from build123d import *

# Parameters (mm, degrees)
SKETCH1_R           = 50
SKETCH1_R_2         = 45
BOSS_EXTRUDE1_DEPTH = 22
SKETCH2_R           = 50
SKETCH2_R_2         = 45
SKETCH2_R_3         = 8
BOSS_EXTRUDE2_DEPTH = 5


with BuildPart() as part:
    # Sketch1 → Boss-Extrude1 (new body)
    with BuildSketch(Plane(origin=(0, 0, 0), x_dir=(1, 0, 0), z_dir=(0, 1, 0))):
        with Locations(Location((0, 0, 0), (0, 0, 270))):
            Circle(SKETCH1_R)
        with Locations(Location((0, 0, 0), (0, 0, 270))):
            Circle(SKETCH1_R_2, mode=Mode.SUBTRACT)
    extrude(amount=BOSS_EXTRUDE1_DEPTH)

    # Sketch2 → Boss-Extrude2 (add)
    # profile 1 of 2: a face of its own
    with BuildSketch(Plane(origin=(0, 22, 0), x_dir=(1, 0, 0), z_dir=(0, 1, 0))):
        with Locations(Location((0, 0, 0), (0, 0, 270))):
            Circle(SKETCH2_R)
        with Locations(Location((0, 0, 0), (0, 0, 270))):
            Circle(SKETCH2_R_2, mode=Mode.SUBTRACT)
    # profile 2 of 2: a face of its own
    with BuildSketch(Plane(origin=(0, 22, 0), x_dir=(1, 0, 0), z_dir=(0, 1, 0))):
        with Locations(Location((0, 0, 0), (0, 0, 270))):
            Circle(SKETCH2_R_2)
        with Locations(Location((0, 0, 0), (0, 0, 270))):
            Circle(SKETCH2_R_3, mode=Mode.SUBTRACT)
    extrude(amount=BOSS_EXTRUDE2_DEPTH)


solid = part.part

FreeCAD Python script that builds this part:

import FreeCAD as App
import Part
import Sketcher
from FreeCAD import Vector
Q = App.Units.Quantity

doc = App.newDocument("Part")
params = doc.addObject("Spreadsheet::Sheet", "Params")
for row, (alias, value) in enumerate([
    ("sketch1_diameter", "100 mm"),
    ("sketch1_diameter2", "90 mm"),
    ("pad1_length", "22 mm"),
    ("sketch2_diameter", "100 mm"),
    ("sketch2_diameter2", "16 mm"),
    ("pad2_length", "5 mm"),
], start=1):
    params.set(f"A{row}", alias)
    params.set(f"B{row}", "=" + value)
    params.setAlias(f"B{row}", alias)

body = doc.addObject("PartDesign::Body", "Body")

# Sketch on XZ plane
sketch1 = body.newObject("Sketcher::SketchObject", "Sketch")
sketch1.AttachmentSupport = (doc.getObject("XZ_Plane"), [""])
sketch1.MapMode = "FlatFace"
sketch1.addGeometry([
    Part.Circle(Vector(0, 0, 0), Vector(0, 0, 1), 50),
    Part.Circle(Vector(0, 0, 0), Vector(0, 0, 1), 45),
], False)
sketch1.addConstraint([
    Sketcher.Constraint("Coincident", 0, 3, -1, 1),
    Sketcher.Constraint("Coincident", 1, 3, -1, 1),
    Sketcher.Constraint("Diameter", 0, Q("100 mm")),
    Sketcher.Constraint("Diameter", 1, Q("90 mm")),
])
sketch1.setExpression("Constraints[2]", "Params.sketch1_diameter")
sketch1.setExpression("Constraints[3]", "Params.sketch1_diameter2")
pad1 = body.newObject("PartDesign::Pad", "Pad")
pad1.Profile = sketch1
pad1.setExpression("Length", "Params.pad1_length")
pad1.Reversed = True

# Sketch on XZ plane
sketch2 = body.newObject("Sketcher::SketchObject", "Sketch001")
sketch2.AttachmentSupport = (doc.getObject("XZ_Plane"), [""])
sketch2.MapMode = "FlatFace"
sketch2.AttachmentOffset = App.Placement(Vector(0, 0, -22), App.Rotation())
sketch2.addGeometry([
    Part.Circle(Vector(0, 0, 0), Vector(0, 0, 1), 50),
    Part.Circle(Vector(0, 0, 0), Vector(0, 0, 1), 8),
], False)
sketch2.addConstraint([
    Sketcher.Constraint("Coincident", 0, 3, -1, 1),
    Sketcher.Constraint("Coincident", 1, 3, -1, 1),
    Sketcher.Constraint("Diameter", 0, Q("100 mm")),
    Sketcher.Constraint("Diameter", 1, Q("16 mm")),
])
sketch2.setExpression("Constraints[2]", "Params.sketch2_diameter")
sketch2.setExpression("Constraints[3]", "Params.sketch2_diameter2")
pad2 = body.newObject("PartDesign::Pad", "Pad001")
pad2.Profile = sketch2
pad2.setExpression("Length", "Params.pad2_length")
pad2.Reversed = True

doc.recompute()
